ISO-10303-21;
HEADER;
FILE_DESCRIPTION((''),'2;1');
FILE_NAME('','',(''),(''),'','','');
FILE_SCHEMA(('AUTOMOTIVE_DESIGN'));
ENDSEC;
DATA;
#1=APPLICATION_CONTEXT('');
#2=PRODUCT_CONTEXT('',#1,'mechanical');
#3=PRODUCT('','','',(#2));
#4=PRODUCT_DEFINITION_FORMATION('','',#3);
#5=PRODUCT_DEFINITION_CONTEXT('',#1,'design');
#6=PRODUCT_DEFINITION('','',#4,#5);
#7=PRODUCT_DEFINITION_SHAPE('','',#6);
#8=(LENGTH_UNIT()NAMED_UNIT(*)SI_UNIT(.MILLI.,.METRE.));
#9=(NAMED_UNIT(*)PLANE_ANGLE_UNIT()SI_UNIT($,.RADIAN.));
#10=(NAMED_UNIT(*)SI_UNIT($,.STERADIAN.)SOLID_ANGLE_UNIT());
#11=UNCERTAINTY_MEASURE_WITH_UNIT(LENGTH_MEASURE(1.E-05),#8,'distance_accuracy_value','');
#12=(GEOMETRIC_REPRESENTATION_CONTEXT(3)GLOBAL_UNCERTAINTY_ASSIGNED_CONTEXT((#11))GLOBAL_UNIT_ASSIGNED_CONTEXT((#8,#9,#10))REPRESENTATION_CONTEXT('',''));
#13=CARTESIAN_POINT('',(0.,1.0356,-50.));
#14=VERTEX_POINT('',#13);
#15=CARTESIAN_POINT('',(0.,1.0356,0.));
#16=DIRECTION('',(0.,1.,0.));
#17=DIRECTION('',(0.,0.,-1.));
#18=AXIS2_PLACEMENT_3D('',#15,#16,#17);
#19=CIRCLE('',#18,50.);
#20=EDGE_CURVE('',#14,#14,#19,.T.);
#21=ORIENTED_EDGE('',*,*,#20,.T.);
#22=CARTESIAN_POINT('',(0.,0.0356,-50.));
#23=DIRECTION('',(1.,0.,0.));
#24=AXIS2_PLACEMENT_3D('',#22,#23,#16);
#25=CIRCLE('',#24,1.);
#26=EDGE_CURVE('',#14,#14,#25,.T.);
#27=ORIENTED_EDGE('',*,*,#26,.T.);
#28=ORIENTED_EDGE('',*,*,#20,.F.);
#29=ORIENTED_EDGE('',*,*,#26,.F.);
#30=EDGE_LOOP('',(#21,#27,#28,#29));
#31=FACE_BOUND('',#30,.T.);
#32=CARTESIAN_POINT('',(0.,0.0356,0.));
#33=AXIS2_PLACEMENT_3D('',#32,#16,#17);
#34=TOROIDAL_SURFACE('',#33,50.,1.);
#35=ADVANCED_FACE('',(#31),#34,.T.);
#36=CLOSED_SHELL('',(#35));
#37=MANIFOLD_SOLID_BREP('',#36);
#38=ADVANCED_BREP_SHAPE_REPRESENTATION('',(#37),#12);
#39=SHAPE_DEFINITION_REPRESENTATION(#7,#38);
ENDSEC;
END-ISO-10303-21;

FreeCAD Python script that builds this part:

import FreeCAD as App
import Part
import Sketcher

V = App.Vector
Q = App.Units.Quantity

doc = App.newDocument("Part")
params = doc.addObject("Spreadsheet::Sheet", "Params")
for row, (alias, value) in enumerate([
    ("sketch1_diameter", "2 mm"),
    ("revolution_angle", "360 deg"),
], start=1):
    params.set(f"A{row}", alias)
    params.set(f"B{row}", "=" + value)
    params.setAlias(f"B{row}", alias)

body = doc.addObject("PartDesign::Body", "Body")

# Sketch on YZ plane
sketch1 = body.newObject("Sketcher::SketchObject", "Sketch")
sketch1.AttachmentSupport = (doc.getObject("YZ_Plane"), [""])
sketch1.MapMode = "FlatFace"
sketch1.addGeometry(Part.Circle(V(0.0356, -50, 0), V(0, 0, 1), 1), False)
sketch1.addConstraint(Sketcher.Constraint("Diameter", 0, Q("2 mm")))
sketch1.addConstraint(Sketcher.Constraint("DistanceY", 0, 3, -1, 1, Q("50 mm")))
sketch1.addConstraint(Sketcher.Constraint("DistanceX", -1, 1, 0, 3, Q("0.0356 mm")))
sketch1.setExpression("Constraints[0]", "Params.sketch1_diameter")
revolution = body.newObject("PartDesign::Revolution", "Revolution")
revolution.Profile = sketch1
revolution.ReferenceAxis = (sketch1, ["H_Axis"])
revolution.setExpression("Angle", "Params.revolution_angle")

doc.recompute()
